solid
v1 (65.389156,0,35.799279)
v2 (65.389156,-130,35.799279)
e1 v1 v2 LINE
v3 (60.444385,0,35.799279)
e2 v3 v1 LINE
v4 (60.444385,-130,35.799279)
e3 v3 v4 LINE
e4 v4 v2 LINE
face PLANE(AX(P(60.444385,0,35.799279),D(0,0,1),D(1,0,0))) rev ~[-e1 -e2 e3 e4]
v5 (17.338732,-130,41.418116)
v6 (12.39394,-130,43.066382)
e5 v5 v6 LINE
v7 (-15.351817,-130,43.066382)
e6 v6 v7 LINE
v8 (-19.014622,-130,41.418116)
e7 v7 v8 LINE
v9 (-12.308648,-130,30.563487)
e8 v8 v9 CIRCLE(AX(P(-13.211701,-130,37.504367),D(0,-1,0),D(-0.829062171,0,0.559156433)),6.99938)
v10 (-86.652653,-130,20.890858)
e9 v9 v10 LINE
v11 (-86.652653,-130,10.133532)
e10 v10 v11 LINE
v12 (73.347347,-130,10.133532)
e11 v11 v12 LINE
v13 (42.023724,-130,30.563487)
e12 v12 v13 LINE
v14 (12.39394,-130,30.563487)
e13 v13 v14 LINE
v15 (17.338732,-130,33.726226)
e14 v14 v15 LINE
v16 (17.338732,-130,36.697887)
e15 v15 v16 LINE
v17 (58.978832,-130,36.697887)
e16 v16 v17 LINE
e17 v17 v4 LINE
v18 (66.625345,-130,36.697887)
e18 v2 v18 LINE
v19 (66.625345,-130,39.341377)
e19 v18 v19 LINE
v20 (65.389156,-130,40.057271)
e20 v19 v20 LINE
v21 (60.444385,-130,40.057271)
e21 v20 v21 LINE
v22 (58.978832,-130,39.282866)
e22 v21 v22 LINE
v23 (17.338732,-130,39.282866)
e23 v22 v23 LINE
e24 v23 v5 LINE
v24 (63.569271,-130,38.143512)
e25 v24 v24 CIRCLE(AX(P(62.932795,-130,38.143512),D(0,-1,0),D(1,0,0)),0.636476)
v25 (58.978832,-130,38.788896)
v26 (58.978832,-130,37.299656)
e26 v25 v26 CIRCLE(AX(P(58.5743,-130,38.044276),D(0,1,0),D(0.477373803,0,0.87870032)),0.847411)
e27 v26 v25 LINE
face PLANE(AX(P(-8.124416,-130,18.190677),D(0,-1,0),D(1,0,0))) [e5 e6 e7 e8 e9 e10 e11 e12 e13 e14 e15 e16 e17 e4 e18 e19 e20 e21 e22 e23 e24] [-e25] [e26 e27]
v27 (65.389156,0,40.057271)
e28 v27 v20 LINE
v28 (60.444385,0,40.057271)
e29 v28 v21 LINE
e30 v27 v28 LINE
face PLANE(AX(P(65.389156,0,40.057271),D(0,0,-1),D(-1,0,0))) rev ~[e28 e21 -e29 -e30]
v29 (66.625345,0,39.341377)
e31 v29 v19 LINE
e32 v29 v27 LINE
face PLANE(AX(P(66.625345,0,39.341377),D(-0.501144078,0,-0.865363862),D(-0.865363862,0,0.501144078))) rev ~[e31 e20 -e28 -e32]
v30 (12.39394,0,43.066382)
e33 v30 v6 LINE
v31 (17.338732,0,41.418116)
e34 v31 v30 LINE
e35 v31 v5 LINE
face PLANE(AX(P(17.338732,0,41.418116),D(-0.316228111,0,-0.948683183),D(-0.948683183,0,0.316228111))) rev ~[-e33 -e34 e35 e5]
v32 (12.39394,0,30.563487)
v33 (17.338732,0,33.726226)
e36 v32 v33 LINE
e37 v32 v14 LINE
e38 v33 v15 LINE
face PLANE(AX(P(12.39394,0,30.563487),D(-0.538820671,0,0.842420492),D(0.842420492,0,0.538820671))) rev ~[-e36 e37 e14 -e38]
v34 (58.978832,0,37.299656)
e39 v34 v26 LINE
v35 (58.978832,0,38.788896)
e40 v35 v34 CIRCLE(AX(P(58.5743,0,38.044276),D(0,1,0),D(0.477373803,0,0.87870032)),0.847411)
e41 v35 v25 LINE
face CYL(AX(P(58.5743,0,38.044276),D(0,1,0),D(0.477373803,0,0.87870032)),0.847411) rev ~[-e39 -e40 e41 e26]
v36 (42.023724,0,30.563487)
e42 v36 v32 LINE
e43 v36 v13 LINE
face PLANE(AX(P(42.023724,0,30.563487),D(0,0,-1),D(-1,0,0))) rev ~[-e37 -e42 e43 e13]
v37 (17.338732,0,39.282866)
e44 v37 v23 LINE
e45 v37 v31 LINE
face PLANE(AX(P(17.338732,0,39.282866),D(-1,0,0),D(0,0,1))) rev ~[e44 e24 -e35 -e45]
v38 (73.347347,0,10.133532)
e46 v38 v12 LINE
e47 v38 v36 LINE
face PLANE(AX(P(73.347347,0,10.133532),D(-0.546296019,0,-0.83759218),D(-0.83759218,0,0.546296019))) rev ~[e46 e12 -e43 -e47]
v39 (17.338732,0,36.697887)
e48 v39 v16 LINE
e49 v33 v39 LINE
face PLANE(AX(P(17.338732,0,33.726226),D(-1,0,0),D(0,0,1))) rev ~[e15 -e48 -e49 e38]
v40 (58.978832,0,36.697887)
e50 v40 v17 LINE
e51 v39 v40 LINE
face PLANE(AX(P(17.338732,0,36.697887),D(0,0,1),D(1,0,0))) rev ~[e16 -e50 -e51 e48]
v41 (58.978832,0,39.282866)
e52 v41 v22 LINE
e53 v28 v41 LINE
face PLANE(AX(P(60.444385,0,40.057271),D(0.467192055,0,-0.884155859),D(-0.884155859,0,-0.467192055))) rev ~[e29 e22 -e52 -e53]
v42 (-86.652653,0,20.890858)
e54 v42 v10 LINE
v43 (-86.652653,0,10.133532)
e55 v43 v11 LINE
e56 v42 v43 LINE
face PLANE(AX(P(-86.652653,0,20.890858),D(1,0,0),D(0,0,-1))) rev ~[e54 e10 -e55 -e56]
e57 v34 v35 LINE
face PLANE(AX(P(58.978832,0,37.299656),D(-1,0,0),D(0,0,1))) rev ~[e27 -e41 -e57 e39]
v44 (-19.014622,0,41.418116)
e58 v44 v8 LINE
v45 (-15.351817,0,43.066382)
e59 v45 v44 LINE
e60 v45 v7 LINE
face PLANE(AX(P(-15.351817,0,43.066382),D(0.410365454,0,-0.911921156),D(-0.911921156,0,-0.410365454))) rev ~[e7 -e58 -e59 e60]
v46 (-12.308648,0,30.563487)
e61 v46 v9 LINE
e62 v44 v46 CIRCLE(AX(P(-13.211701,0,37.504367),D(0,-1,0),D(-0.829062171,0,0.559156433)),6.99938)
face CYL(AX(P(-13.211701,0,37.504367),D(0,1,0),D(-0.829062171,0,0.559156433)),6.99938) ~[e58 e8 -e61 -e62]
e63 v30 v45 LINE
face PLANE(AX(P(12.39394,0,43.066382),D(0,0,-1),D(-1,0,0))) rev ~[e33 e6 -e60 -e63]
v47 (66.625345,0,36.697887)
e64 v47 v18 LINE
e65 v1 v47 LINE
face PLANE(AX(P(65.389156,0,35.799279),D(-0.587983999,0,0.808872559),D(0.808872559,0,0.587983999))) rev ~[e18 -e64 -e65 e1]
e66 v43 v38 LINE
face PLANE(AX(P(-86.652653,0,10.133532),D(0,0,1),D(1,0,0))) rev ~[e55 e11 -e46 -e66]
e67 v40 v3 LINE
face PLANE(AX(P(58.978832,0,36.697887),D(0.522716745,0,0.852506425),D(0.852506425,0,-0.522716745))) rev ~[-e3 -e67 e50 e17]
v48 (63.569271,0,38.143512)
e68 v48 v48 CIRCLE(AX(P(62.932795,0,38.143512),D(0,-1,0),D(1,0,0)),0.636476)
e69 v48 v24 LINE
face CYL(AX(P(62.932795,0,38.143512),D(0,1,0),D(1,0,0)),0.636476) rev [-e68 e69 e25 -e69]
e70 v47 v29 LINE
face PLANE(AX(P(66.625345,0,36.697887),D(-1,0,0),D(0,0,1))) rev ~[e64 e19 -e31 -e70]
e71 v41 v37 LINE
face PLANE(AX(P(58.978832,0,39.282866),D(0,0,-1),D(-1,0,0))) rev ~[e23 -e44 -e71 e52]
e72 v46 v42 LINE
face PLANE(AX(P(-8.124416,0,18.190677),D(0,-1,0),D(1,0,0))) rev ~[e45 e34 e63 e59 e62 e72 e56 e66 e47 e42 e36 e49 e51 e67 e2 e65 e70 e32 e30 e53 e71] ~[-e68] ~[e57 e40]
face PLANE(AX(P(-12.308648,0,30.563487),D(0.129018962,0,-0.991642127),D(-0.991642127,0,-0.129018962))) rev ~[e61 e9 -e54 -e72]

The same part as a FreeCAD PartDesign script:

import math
import FreeCAD as App
import Part
import Sketcher

V = App.Vector

doc = App.newDocument("Part")
body = doc.addObject("PartDesign::Body", "Body")

# Sketch on XZ plane
sketch1 = body.newObject("Sketcher::SketchObject", "Sketch")
sketch1.AttachmentSupport = (doc.getObject("XZ_Plane"), [""])
sketch1.MapMode = "FlatFace"
sketch1.addGeometry([
    Part.LineSegment(V(-12.3, 30.6, 0), V(-86.7, 20.9, 0)),  # 0
    Part.LineSegment(V(-86.7, 20.9, 0), V(-86.7, 10.1, 0)),  # 1
    Part.LineSegment(V(-86.7, 10.1, 0), V(73.3, 10.1, 0)),  # 2
    Part.LineSegment(V(73.3, 10.1, 0), V(42, 30.6, 0)),  # 3
    Part.LineSegment(V(42, 30.6, 0), V(12.4, 30.6, 0)),  # 4
    Part.LineSegment(V(12.4, 30.6, 0), V(17.3, 33.7, 0)),  # 5
    Part.LineSegment(V(17.3, 33.7, 0), V(17.3, 36.7, 0)),  # 6
    Part.LineSegment(V(17.3, 36.7, 0), V(59, 36.7, 0)),  # 7
    Part.LineSegment(V(59, 36.7, 0), V(60.4, 35.8, 0)),  # 8
    Part.LineSegment(V(60.4, 35.8, 0), V(65.4, 35.8, 0)),  # 9
    Part.LineSegment(V(65.4, 35.8, 0), V(66.6, 36.7, 0)),  # 10
    Part.LineSegment(V(66.6, 36.7, 0), V(66.6, 39.3, 0)),  # 11
    Part.LineSegment(V(66.6, 39.3, 0), V(65.4, 40.1, 0)),  # 12
    Part.LineSegment(V(65.4, 40.1, 0), V(60.4, 40.1, 0)),  # 13
    Part.LineSegment(V(60.4, 40.1, 0), V(59, 39.3, 0)),  # 14
    Part.LineSegment(V(59, 39.3, 0), V(17.3, 39.3, 0)),  # 15
    Part.LineSegment(V(17.3, 39.3, 0), V(17.3, 41.4, 0)),  # 16
    Part.LineSegment(V(17.3, 41.4, 0), V(12.4, 43.1, 0)),  # 17
    Part.LineSegment(V(12.4, 43.1, 0), V(-15.4, 43.1, 0)),  # 18
    Part.LineSegment(V(-15.4, 43.1, 0), V(-19, 41.4, 0)),  # 19
    Part.ArcOfCircle(Part.Circle(V(-13.2, 37.5, 0), V(0, 0, 1), 7), math.radians(146), math.radians(277)),  # 20
    Part.LineSegment(V(59, 37.3, 0), V(59, 38.8, 0)),  # 21
    Part.ArcOfCircle(Part.Circle(V(58.6, 38, 0), V(0, 0, 1), 0.8), math.radians(-61), math.radians(61)),  # 22
    Part.Circle(V(62.9, 38.1, 0), V(0, 0, 1), 0.6),  # 23
], False)
sketch1.addConstraint([
    Sketcher.Constraint("Coincident", 0, 2, 1, 1),
    Sketcher.Constraint("Coincident", 1, 2, 2, 1),
    Sketcher.Constraint("Coincident", 2, 2, 3, 1),
    Sketcher.Constraint("Coincident", 3, 2, 4, 1),
    Sketcher.Constraint("Coincident", 4, 2, 5, 1),
    Sketcher.Constraint("Coincident", 5, 2, 6, 1),
    Sketcher.Constraint("Coincident", 6, 2, 7, 1),
    Sketcher.Constraint("Coincident", 7, 2, 8, 1),
    Sketcher.Constraint("Coincident", 8, 2, 9, 1),
    Sketcher.Constraint("Coincident", 9, 2, 10, 1),
    Sketcher.Constraint("Coincident", 10, 2, 11, 1),
    Sketcher.Constraint("Coincident", 11, 2, 12, 1),
    Sketcher.Constraint("Coincident", 12, 2, 13, 1),
    Sketcher.Constraint("Coincident", 13, 2, 14, 1),
    Sketcher.Constraint("Coincident", 14, 2, 15, 1),
    Sketcher.Constraint("Coincident", 15, 2, 16, 1),
    Sketcher.Constraint("Coincident", 16, 2, 17, 1),
    Sketcher.Constraint("Coincident", 17, 2, 18, 1),
    Sketcher.Constraint("Coincident", 18, 2, 19, 1),
    Sketcher.Constraint("Coincident", 19, 2, 20, 1),
    Sketcher.Constraint("Tangent", 20, 2, 0, 1),
    Sketcher.Constraint("Coincident", 21, 1, 22, 1),
    Sketcher.Constraint("Coincident", 22, 2, 21, 2),
    Sketcher.Constraint("Vertical", 1),
    Sketcher.Constraint("Horizontal", 2),
    Sketcher.Constraint("Horizontal", 4),
    Sketcher.Constraint("Vertical", 6),
    Sketcher.Constraint("Horizontal", 7),
    Sketcher.Constraint("Horizontal", 9),
    Sketcher.Constraint("Vertical", 11),
    Sketcher.Constraint("Horizontal", 13),
    Sketcher.Constraint("Horizontal", 15),
    Sketcher.Constraint("Vertical", 16),
    Sketcher.Constraint("Horizontal", 18),
    Sketcher.Constraint("Vertical", 21),
    Sketcher.Constraint("Horizontal", 7, 2, 10, 2),
    Sketcher.Constraint("Horizontal", 16, 2, 19, 2),
    Sketcher.Constraint("Horizontal", 4, 2, 20, 2),
    Sketcher.Constraint("Vertical", 9, 2, 12, 2),
    Sketcher.Constraint("Vertical", 8, 2, 13, 2),
    Sketcher.Constraint("Vertical", 7, 2, 14, 2),
    Sketcher.Constraint("Vertical", 6, 2, 15, 2),
    Sketcher.Constraint("Vertical", 4, 2, 17, 2),
    Sketcher.Constraint("Vertical", 14, 2, 21, 1),
    Sketcher.Constraint("DistanceX", 2, 1, 2, 2, 160.0),
    Sketcher.Constraint("Radius", 20, 6.99938),
    Sketcher.Constraint("Radius", 22, 0.847411),
    Sketcher.Constraint("Diameter", 23, 1.272952),
    Sketcher.Constraint("DistanceX", 7, 1, 7, 2, 41.6401),
    Sketcher.Constraint("DistanceX", 20, 3, 22, 3, 71.786001),
    Sketcher.Constraint("Distance", 0, 74.9706),
    Sketcher.Constraint("DistanceX", 9, 1, 9, 2, 4.944771),
    Sketcher.Constraint("DistanceY", 6, 1, 6, 2, 2.971661),
    Sketcher.Constraint("DistanceY", 11, 1, 11, 2, 2.64349),
    Sketcher.Constraint("DistanceY", 16, 1, 16, 2, 2.13525),
    Sketcher.Constraint("DistanceY", 21, 1, 21, 2, 1.48924),
    Sketcher.Constraint("DistanceX", 20, 3, -1, 1, 13.211701),
    Sketcher.Constraint("DistanceY", 4, 2, 6, 2, 6.1344),
    Sketcher.Constraint("DistanceY", 9, 2, 11, 2, 3.542098),
    Sketcher.Constraint("DistanceY", 20, 3, 15, 2, 1.778499),
    Sketcher.Constraint("Distance", 8, 1.719111),
    Sketcher.Constraint("Distance", 12, 1.428519),
    Sketcher.Constraint("Distance", 17, 5.212269),
    Sketcher.Constraint("Distance", 19, 4.016581),
    Sketcher.Constraint("DistanceX", 4, 2, 4, 1, 29.629784),
    Sketcher.Constraint("DistanceX", 18, 2, 18, 1, 27.745757),
    Sketcher.Constraint("DistanceY", 1, 2, 1, 1, 10.757326),
    Sketcher.Constraint("DistanceY", -1, 1, 0, 2, 20.890858),
    Sketcher.Constraint("DistanceY", -1, 1, 8, 2, 35.799279),
    Sketcher.Constraint("DistanceY", -1, 1, 12, 2, 40.057271),
    Sketcher.Constraint("DistanceY", 20, 3, 22, 3, 0.539909),
    Sketcher.Constraint("DistanceY", 1, 2, 23, 3, 28.00998),
    Sketcher.Constraint("DistanceX", 3, 2, 23, 3, 20.909071),
])
pad1 = body.newObject("PartDesign::Pad", "Pad")
pad1.Profile = sketch1
pad1.Length = 130

doc.recompute()
